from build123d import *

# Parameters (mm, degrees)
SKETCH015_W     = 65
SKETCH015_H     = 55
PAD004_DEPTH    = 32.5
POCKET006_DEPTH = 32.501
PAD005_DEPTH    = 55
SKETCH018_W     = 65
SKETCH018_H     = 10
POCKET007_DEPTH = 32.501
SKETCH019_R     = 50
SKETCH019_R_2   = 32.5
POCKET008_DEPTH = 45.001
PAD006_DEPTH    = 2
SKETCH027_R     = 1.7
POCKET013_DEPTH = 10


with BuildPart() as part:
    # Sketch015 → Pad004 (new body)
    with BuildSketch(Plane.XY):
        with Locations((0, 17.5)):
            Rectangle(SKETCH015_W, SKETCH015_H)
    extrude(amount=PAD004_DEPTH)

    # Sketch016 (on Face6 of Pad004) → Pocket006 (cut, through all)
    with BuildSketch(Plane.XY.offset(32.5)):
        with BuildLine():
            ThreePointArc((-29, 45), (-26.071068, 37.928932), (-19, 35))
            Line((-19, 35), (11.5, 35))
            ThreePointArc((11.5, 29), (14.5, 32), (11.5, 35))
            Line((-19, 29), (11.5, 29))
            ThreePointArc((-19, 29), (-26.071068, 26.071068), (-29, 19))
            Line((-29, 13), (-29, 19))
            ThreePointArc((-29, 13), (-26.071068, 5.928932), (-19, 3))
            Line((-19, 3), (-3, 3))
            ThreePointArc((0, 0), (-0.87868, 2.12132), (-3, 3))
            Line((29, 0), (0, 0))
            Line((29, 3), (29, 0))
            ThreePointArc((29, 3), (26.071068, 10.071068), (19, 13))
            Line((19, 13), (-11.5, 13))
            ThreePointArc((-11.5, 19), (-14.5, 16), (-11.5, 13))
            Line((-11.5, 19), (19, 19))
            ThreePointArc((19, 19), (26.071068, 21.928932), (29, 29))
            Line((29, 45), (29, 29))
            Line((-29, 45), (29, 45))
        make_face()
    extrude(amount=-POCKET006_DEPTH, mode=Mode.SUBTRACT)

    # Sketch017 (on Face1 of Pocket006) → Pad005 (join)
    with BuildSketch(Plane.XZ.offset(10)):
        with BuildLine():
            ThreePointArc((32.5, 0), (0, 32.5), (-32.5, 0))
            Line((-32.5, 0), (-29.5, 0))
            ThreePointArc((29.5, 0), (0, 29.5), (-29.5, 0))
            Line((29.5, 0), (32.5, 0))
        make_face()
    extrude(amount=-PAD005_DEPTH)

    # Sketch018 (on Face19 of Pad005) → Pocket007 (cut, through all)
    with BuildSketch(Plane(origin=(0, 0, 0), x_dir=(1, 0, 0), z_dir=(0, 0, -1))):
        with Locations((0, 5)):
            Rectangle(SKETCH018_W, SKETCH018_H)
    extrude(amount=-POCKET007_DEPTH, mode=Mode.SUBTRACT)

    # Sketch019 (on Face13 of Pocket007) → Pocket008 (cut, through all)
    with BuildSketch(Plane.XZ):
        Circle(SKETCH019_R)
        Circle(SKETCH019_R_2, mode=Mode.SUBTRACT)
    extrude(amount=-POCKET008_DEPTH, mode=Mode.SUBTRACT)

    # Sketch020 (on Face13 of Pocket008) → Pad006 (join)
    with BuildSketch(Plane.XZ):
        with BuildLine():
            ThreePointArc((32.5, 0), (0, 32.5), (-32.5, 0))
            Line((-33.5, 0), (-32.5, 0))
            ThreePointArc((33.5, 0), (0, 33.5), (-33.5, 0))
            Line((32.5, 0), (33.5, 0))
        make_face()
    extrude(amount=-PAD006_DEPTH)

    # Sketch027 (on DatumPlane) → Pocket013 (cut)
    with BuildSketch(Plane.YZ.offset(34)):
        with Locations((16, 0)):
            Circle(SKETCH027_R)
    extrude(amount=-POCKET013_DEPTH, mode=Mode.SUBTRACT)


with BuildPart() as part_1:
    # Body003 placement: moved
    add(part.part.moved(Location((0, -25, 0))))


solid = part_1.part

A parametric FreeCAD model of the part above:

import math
import FreeCAD as App
import Part
import Sketcher


def add_polygon(sketch, points):
    """Adds a closed chain of lines whose ends are joined by coincident constraints."""
    first, n = sketch.GeometryCount, len(points)
    for a, b in zip(points, points[1:] + points[:1]):
        sketch.addGeometry(Part.LineSegment(App.Vector(*a, 0), App.Vector(*b, 0)), False)
    for i in range(n):
        sketch.addConstraint(Sketcher.Constraint("Coincident", first + i, 2, first + (i + 1) % n, 1))

doc = App.newDocument("Part")
body = doc.addObject("PartDesign::Body", "Body")

sketch1 = body.newObject("Sketcher::SketchObject", "Sketch")
sketch1.AttachmentSupport = (doc.getObject("XY_Plane"), [""])
sketch1.MapMode = "FlatFace"
add_polygon(sketch1, [(-32, 45), (-32, -10), (32, -10), (32, 45)])
sketch1.addConstraint(Sketcher.Constraint("Vertical", 0))
sketch1.addConstraint(Sketcher.Constraint("Horizontal", 1))
sketch1.addConstraint(Sketcher.Constraint("Vertical", 2))
sketch1.addConstraint(Sketcher.Constraint("Horizontal", 3))
sketch1.addConstraint(Sketcher.Constraint("DistanceX", 1, 1, 1, 2, 65.0))
sketch1.addConstraint(Sketcher.Constraint("DistanceY", 0, 2, 0, 1, 55.0))
sketch1.addConstraint(Sketcher.Constraint("DistanceY", 0, 2, -1, 1, 10.0))
sketch1.addConstraint(Sketcher.Constraint("DistanceX", 0, 2, -1, 1, 32.5))
pad1 = body.newObject("PartDesign::Pad", "Pad")
pad1.Profile = sketch1
pad1.Length = 32.5

sketch2 = body.newObject("Sketcher::SketchObject", "Sketch001")
sketch2.AttachmentSupport = (doc.getObject("XY_Plane"), [""])
sketch2.MapMode = "FlatFace"
sketch2.AttachmentOffset = App.Placement(App.Vector(0, 0, 32.5), App.Rotation())
sketch2.addGeometry(Part.ArcOfCircle(Part.Circle(App.Vector(-19, 45, 0), App.Vector(0, 0, 1), 10), math.radians(180), math.radians(270)), False)
sketch2.addGeometry(Part.LineSegment(App.Vector(-19, 35, 0), App.Vector(11.5, 35, 0)), False)
sketch2.addGeometry(Part.ArcOfCircle(Part.Circle(App.Vector(11.5, 32, 0), App.Vector(0, 0, 1), 3), math.radians(-90), math.radians(90)), False)
sketch2.addGeometry(Part.LineSegment(App.Vector(11.5, 29, 0), App.Vector(-19, 29, 0)), False)
sketch2.addGeometry(Part.ArcOfCircle(Part.Circle(App.Vector(-19, 19, 0), App.Vector(0, 0, 1), 10), math.radians(90), math.radians(180)), False)
sketch2.addGeometry(Part.LineSegment(App.Vector(-29, 19, 0), App.Vector(-29, 13, 0)), False)
sketch2.addGeometry(Part.ArcOfCircle(Part.Circle(App.Vector(-19, 13, 0), App.Vector(0, 0, 1), 10), math.radians(180), math.radians(270)), False)
sketch2.addGeometry(Part.LineSegment(App.Vector(-19, 3, 0), App.Vector(-3, 3, 0)), False)
sketch2.addGeometry(Part.ArcOfCircle(Part.Circle(App.Vector(-3, 0, 0), App.Vector(0, 0, 1), 3), math.radians(0), math.radians(90)), False)
sketch2.addGeometry(Part.LineSegment(App.Vector(0, 0, 0), App.Vector(29, 0, 0)), False)
sketch2.addGeometry(Part.LineSegment(App.Vector(29, 0, 0), App.Vector(29, 3, 0)), False)
sketch2.addGeometry(Part.ArcOfCircle(Part.Circle(App.Vector(19, 3, 0), App.Vector(0, 0, 1), 10), math.radians(0), math.radians(90)), False)
sketch2.addGeometry(Part.LineSegment(App.Vector(19, 13, 0), App.Vector(-11.5, 13, 0)), False)
sketch2.addGeometry(Part.ArcOfCircle(Part.Circle(App.Vector(-11.5, 16, 0), App.Vector(0, 0, 1), 3), math.radians(90), math.radians(270)), False)
sketch2.addGeometry(Part.LineSegment(App.Vector(-11.5, 19, 0), App.Vector(19, 19, 0)), False)
sketch2.addGeometry(Part.ArcOfCircle(Part.Circle(App.Vector(19, 29, 0), App.Vector(0, 0, 1), 10), math.radians(-90), math.radians(0)), False)
sketch2.addGeometry(Part.LineSegment(App.Vector(29, 29, 0), App.Vector(29, 45, 0)), False)
sketch2.addGeometry(Part.LineSegment(App.Vector(29, 45, 0), App.Vector(-29, 45, 0)), False)
sketch2.addConstraint(Sketcher.Constraint("Tangent", 0, 2, 1, 1))
sketch2.addConstraint(Sketcher.Constraint("Tangent", 1, 2, 2, 2))
sketch2.addConstraint(Sketcher.Constraint("Tangent", 2, 1, 3, 1))
sketch2.addConstraint(Sketcher.Constraint("Tangent", 3, 2, 4, 1))
sketch2.addConstraint(Sketcher.Constraint("Tangent", 4, 2, 5, 1))
sketch2.addConstraint(Sketcher.Constraint("Tangent", 5, 2, 6, 1))
sketch2.addConstraint(Sketcher.Constraint("Tangent", 6, 2, 7, 1))
sketch2.addConstraint(Sketcher.Constraint("Tangent", 7, 2, 8, 2))
sketch2.addConstraint(Sketcher.Constraint("Coincident", 8, 1, 9, 1))
sketch2.addConstraint(Sketcher.Constraint("Coincident", 9, 2, 10, 1))
sketch2.addConstraint(Sketcher.Constraint("Tangent", 10, 2, 11, 1))
sketch2.addConstraint(Sketcher.Constraint("Tangent", 11, 2, 12, 1))
sketch2.addConstraint(Sketcher.Constraint("Tangent", 12, 2, 13, 2))
sketch2.addConstraint(Sketcher.Constraint("Tangent", 13, 1, 14, 1))
sketch2.addConstraint(Sketcher.Constraint("Tangent", 14, 2, 15, 1))
sketch2.addConstraint(Sketcher.Constraint("Tangent", 15, 2, 16, 1))
sketch2.addConstraint(Sketcher.Constraint("Coincident", 16, 2, 17, 1))
sketch2.addConstraint(Sketcher.Constraint("Coincident", 17, 2, 0, 1))
sketch2.addConstraint(Sketcher.Constraint("Horizontal", 1))
sketch2.addConstraint(Sketcher.Constraint("Horizontal", 3))
sketch2.addConstraint(Sketcher.Constraint("Vertical", 5))
sketch2.addConstraint(Sketcher.Constraint("Horizontal", 7))
sketch2.addConstraint(Sketcher.Constraint("Horizontal", 9))
sketch2.addConstraint(Sketcher.Constraint("Vertical", 10))
sketch2.addConstraint(Sketcher.Constraint("Horizontal", 12))
sketch2.addConstraint(Sketcher.Constraint("Horizontal", 14))
sketch2.addConstraint(Sketcher.Constraint("Vertical", 16))
sketch2.addConstraint(Sketcher.Constraint("Horizontal", 17))
sketch2.addConstraint(Sketcher.Constraint("Coincident", 8, 1, -1, 1))
sketch2.addConstraint(Sketcher.Constraint("Equal", 0, 4))
sketch2.addConstraint(Sketcher.Constraint("Equal", 4, 6))
sketch2.addConstraint(Sketcher.Constraint("Equal", 2, 8))
sketch2.addConstraint(Sketcher.Constraint("Equal", 6, 11))
sketch2.addConstraint(Sketcher.Constraint("Equal", 8, 13))
sketch2.addConstraint(Sketcher.Constraint("Equal", 11, 15))
sketch2.addConstraint(Sketcher.Constraint("PointOnObject", 8, 3, -1))
sketch2.addConstraint(Sketcher.Constraint("Horizontal", 15, 3, 2, 1))
sketch2.addConstraint(Sketcher.Constraint("Horizontal", 11, 3, 6, 2))
sketch2.addConstraint(Sketcher.Constraint("Horizontal", 0, 3, 16, 2))
sketch2.addConstraint(Sketcher.Constraint("Vertical", 0, 3, 4, 3))
sketch2.addConstraint(Sketcher.Constraint("Vertical", 11, 3, 15, 3))
sketch2.addConstraint(Sketcher.Constraint("Equal", 3, 12))
sketch2.addConstraint(Sketcher.Constraint("Equal", 7, 16))
sketch2.addConstraint(Sketcher.Constraint("Radius", 0, 9.999999))
sketch2.addConstraint(Sketcher.Constraint("Radius", 2, 3.0))
sketch2.addConstraint(Sketcher.Constraint("DistanceX", 9, 1, 9, 2, 29.0))
sketch2.addConstraint(Sketcher.Constraint("DistanceX", 1, 1, 1, 2, 30.5))
pocket1 = body.newObject("PartDesign::Pocket", "Pocket")
pocket1.Profile = sketch2
pocket1.Type = "ThroughAll"

sketch3 = body.newObject("Sketcher::SketchObject", "Sketch002")
sketch3.AttachmentSupport = (doc.getObject("XZ_Plane"), [""])
sketch3.MapMode = "FlatFace"
sketch3.AttachmentOffset = App.Placement(App.Vector(0, 0, 10), App.Rotation())
sketch3.addGeometry(Part.ArcOfCircle(Part.Circle(App.Vector(0, 0, 0), App.Vector(0, 0, 1), 32.5), math.radians(0), math.radians(180)), False)
sketch3.addGeometry(Part.LineSegment(App.Vector(-32.5, 0, 0), App.Vector(-29.5, 0, 0)), False)
sketch3.addGeometry(Part.ArcOfCircle(Part.Circle(App.Vector(0, 0, 0), App.Vector(0, 0, 1), 29.5), math.radians(0), math.radians(180)), False)
sketch3.addGeometry(Part.LineSegment(App.Vector(29.5, 0, 0), App.Vector(32.5, 0, 0)), False)
sketch3.addConstraint(Sketcher.Constraint("Coincident", 0, 2, 1, 1))
sketch3.addConstraint(Sketcher.Constraint("Coincident", 1, 2, 2, 2))
sketch3.addConstraint(Sketcher.Constraint("Coincident", 2, 1, 3, 1))
sketch3.addConstraint(Sketcher.Constraint("Coincident", 3, 2, 0, 1))
sketch3.addConstraint(Sketcher.Constraint("Horizontal", 1))
sketch3.addConstraint(Sketcher.Constraint("Horizontal", 3))
sketch3.addConstraint(Sketcher.Constraint("Coincident", 0, 3, -1, 1))
sketch3.addConstraint(Sketcher.Constraint("Coincident", 2, 3, -1, 1))
sketch3.addConstraint(Sketcher.Constraint("PointOnObject", 0, 2, -1))
sketch3.addConstraint(Sketcher.Constraint("PointOnObject", 2, 1, -1))
sketch3.addConstraint(Sketcher.Constraint("Radius", 0, 32.5))
sketch3.addConstraint(Sketcher.Constraint("Radius", 2, 29.5))
pad2 = body.newObject("PartDesign::Pad", "Pad001")
pad2.Profile = sketch3
pad2.Length = 55
pad2.Reversed = True

sketch4 = body.newObject("Sketcher::SketchObject", "Sketch003")
sketch4.AttachmentSupport = (doc.getObject("XY_Plane"), [""])
sketch4.MapMode = "FlatFace"
add_polygon(sketch4, [(-32, -10), (-32, 0), (32, 0), (32, -10)])
sketch4.addConstraint(Sketcher.Constraint("Vertical", 0))
sketch4.addConstraint(Sketcher.Constraint("Horizontal", 1))
sketch4.addConstraint(Sketcher.Constraint("Vertical", 2))
sketch4.addConstraint(Sketcher.Constraint("Horizontal", 3))
sketch4.addConstraint(Sketcher.Constraint("Symmetric", 0, 2, 1, 2, -1, 1))
sketch4.addConstraint(Sketcher.Constraint("DistanceX", 1, 1, 1, 2, 65.0))
sketch4.addConstraint(Sketcher.Constraint("DistanceY", 0, 1, 0, 2, 10.0))
pocket2 = body.newObject("PartDesign::Pocket", "Pocket001")
pocket2.Profile = sketch4
pocket2.Type = "ThroughAll"
pocket2.Reversed = True

sketch5 = body.newObject("Sketcher::SketchObject", "Sketch004")
sketch5.AttachmentSupport = (doc.getObject("XZ_Plane"), [""])
sketch5.MapMode = "FlatFace"
sketch5.addGeometry(Part.Circle(App.Vector(0, 0, 0), App.Vector(0, 0, 1), 50), False)
sketch5.addGeometry(Part.Circle(App.Vector(0, 0, 0), App.Vector(0, 0, 1), 32), False)
sketch5.addConstraint(Sketcher.Constraint("Coincident", 0, 3, -1, 1))
sketch5.addConstraint(Sketcher.Constraint("Coincident", 1, 3, -1, 1))
sketch5.addConstraint(Sketcher.Constraint("Diameter", 0, 100.0))
sketch5.addConstraint(Sketcher.Constraint("Diameter", 1, 65.0))
pocket3 = body.newObject("PartDesign::Pocket", "Pocket002")
pocket3.Profile = sketch5
pocket3.Type = "ThroughAll"

sketch6 = body.newObject("Sketcher::SketchObject", "Sketch005")
sketch6.AttachmentSupport = (doc.getObject("XZ_Plane"), [""])
sketch6.MapMode = "FlatFace"
sketch6.addGeometry(Part.ArcOfCircle(Part.Circle(App.Vector(0, 0, 0), App.Vector(0, 0, 1), 32.5), math.radians(0), math.radians(180)), False)
sketch6.addGeometry(Part.LineSegment(App.Vector(32.5, 0, 0), App.Vector(33.5, 0, 0)), False)
sketch6.addGeometry(Part.ArcOfCircle(Part.Circle(App.Vector(0, 0, 0), App.Vector(0, 0, 1), 33.5), math.radians(0), math.radians(180)), False)
sketch6.addGeometry(Part.LineSegment(App.Vector(-33.5, 0, 0), App.Vector(-32.5, 0, 0)), False)
sketch6.addConstraint(Sketcher.Constraint("Coincident", 0, 1, 1, 1))
sketch6.addConstraint(Sketcher.Constraint("Coincident", 1, 2, 2, 1))
sketch6.addConstraint(Sketcher.Constraint("Coincident", 2, 2, 3, 1))
sketch6.addConstraint(Sketcher.Constraint("Coincident", 3, 2, 0, 2))
sketch6.addConstraint(Sketcher.Constraint("Horizontal", 1))
sketch6.addConstraint(Sketcher.Constraint("Horizontal", 3))
sketch6.addConstraint(Sketcher.Constraint("Coincident", 0, 3, -1, 1))
sketch6.addConstraint(Sketcher.Constraint("Coincident", 2, 3, -1, 1))
sketch6.addConstraint(Sketcher.Constraint("PointOnObject", 0, 1, -1))
sketch6.addConstraint(Sketcher.Constraint("PointOnObject", 2, 2, -1))
sketch6.addConstraint(Sketcher.Constraint("Radius", 0, 32.5))
sketch6.addConstraint(Sketcher.Constraint("Radius", 2, 33.5))
pad3 = body.newObject("PartDesign::Pad", "Pad002")
pad3.Profile = sketch6
pad3.Length = 2
pad3.Reversed = True

sketch7 = body.newObject("Sketcher::SketchObject", "Sketch006")
sketch7.AttachmentSupport = (doc.getObject("YZ_Plane"), [""])
sketch7.MapMode = "FlatFace"
sketch7.AttachmentOffset = App.Placement(App.Vector(0, 0, 34), App.Rotation())
sketch7.addGeometry(Part.Circle(App.Vector(16, 0, 0), App.Vector(0, 0, 1), 1.7), False)
sketch7.addConstraint(Sketcher.Constraint("PointOnObject", 0, 3, -1))
sketch7.addConstraint(Sketcher.Constraint("Diameter", 0, 3.4))
sketch7.addConstraint(Sketcher.Constraint("DistanceX", -1, 1, 0, 3, 16.0))
pocket4 = body.newObject("PartDesign::Pocket", "Pocket003")
pocket4.Profile = sketch7
pocket4.Length = 10
body2 = doc.addObject("PartDesign::Body", "Body001")
doc.recompute()

body.Placement = App.Placement(App.Vector(0, -25, 0), App.Rotation(App.Vector(0, 0, 1), 0))
boolean = body2.newObject("PartDesign::Boolean", "Boolean")
boolean.Type = "Fuse"
boolean.addObjects([body])

doc.recompute()
